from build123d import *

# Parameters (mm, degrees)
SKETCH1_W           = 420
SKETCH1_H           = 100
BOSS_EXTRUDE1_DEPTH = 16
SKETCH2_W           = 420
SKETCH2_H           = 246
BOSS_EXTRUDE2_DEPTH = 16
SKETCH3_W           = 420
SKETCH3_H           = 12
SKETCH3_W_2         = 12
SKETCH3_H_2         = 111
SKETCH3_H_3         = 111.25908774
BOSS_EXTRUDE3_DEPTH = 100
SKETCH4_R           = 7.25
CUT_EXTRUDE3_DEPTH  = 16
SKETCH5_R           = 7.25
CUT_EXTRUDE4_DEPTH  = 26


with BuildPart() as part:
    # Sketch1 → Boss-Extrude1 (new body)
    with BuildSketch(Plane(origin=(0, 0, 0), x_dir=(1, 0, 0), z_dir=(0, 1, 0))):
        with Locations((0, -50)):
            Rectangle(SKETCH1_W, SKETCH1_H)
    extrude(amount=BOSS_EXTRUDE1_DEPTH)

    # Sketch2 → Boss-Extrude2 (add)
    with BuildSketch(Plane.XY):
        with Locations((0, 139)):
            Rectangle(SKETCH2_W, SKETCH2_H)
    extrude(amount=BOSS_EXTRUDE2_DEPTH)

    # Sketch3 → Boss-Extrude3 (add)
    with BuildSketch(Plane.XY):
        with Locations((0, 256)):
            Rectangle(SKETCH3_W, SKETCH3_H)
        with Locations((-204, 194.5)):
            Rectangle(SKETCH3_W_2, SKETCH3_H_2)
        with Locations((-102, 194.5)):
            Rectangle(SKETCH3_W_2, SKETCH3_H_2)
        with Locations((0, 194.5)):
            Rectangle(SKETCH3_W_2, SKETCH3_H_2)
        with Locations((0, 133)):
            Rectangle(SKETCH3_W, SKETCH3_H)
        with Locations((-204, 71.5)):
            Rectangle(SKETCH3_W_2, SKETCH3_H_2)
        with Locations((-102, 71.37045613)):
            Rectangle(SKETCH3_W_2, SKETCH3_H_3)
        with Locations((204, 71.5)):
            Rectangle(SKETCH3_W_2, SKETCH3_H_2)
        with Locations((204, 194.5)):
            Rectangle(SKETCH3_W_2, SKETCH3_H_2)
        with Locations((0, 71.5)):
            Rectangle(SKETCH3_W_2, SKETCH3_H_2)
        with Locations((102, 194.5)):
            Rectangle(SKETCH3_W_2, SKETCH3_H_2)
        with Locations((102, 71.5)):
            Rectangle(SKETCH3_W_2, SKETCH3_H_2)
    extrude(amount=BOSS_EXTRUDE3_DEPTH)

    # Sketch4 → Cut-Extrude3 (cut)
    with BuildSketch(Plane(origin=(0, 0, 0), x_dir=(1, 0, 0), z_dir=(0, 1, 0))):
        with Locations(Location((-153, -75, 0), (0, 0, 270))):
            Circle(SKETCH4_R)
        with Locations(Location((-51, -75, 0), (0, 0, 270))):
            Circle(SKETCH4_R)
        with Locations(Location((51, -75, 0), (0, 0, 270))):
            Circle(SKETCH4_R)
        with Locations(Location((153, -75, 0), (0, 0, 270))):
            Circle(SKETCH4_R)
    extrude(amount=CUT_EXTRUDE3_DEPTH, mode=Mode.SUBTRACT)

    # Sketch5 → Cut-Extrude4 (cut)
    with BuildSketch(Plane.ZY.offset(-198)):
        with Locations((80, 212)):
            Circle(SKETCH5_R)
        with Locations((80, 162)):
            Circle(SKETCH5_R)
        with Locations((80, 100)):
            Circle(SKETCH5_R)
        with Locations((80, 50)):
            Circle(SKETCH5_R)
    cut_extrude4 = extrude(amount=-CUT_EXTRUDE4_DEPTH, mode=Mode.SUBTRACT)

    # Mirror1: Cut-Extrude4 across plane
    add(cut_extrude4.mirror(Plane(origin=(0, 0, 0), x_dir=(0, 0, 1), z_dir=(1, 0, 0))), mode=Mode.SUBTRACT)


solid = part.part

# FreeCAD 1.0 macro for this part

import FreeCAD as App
import Part
import Sketcher
Q = App.Units.Quantity


def add_polygon(sketch, points):
    """Adds a closed chain of lines whose ends are joined by coincident constraints."""
    first, n = sketch.GeometryCount, len(points)
    for a, b in zip(points, points[1:] + points[:1]):
        sketch.addGeometry(Part.LineSegment(App.Vector(*a, 0), App.Vector(*b, 0)), False)
    for i in range(n):
        sketch.addConstraint(Sketcher.Constraint("Coincident", first + i, 2, first + (i + 1) % n, 1))

doc = App.newDocument("Part")
body = doc.addObject("PartDesign::Body", "Body")

sketch1 = doc.addObject("Sketcher::SketchObject", "Sketch")
body.addObject(sketch1)
sketch1.AttachmentSupport = (doc.XZ_Plane, [""])
sketch1.MapMode = "FlatFace"
add_polygon(sketch1, [(-210, 0), (-210, 100), (210, 100), (210, 0)])
sketch1.addConstraint(Sketcher.Constraint("Vertical", 0))
sketch1.addConstraint(Sketcher.Constraint("Horizontal", 1))
sketch1.addConstraint(Sketcher.Constraint("Vertical", 2))
sketch1.addConstraint(Sketcher.Constraint("Horizontal", 3))
sketch1.addConstraint(Sketcher.Constraint("Symmetric", 2, 2, 3, 2, -1, 1))
sketch1.addConstraint(Sketcher.Constraint("DistanceX", 1, 1, 1, 2, Q("420 mm")))
sketch1.addConstraint(Sketcher.Constraint("DistanceY", 0, 1, 0, 2, Q("100 mm")))
pad1 = doc.addObject("PartDesign::Pad", "Pad")
body.addObject(pad1)
pad1.Profile = sketch1
pad1.Length = 16
pad1.Reversed = True

sketch2 = doc.addObject("Sketcher::SketchObject", "Sketch001")
body.addObject(sketch2)
sketch2.AttachmentSupport = (doc.XY_Plane, [""])
sketch2.MapMode = "FlatFace"
add_polygon(sketch2, [(-210, 262), (-210, 16), (210, 16), (210, 262)])
sketch2.addConstraint(Sketcher.Constraint("Vertical", 0))
sketch2.addConstraint(Sketcher.Constraint("Horizontal", 1))
sketch2.addConstraint(Sketcher.Constraint("Vertical", 2))
sketch2.addConstraint(Sketcher.Constraint("Horizontal", 3))
sketch2.addConstraint(Sketcher.Constraint("DistanceX", 1, 1, 1, 2, Q("420 mm")))
sketch2.addConstraint(Sketcher.Constraint("DistanceY", 0, 2, 0, 1, Q("246 mm")))
sketch2.addConstraint(Sketcher.Constraint("DistanceX", 0, 2, -1, 1, Q("210 mm")))
sketch2.addConstraint(Sketcher.Constraint("DistanceY", -1, 1, 0, 2, Q("16 mm")))
pad2 = doc.addObject("PartDesign::Pad", "Pad001")
body.addObject(pad2)
pad2.Profile = sketch2
pad2.Length = 16

sketch3 = doc.addObject("Sketcher::SketchObject", "Sketch002")
body.addObject(sketch3)
sketch3.AttachmentSupport = (doc.XY_Plane, [""])
sketch3.MapMode = "FlatFace"
add_polygon(sketch3, [(-210, 262), (-210, 16), (-198, 16), (-198, 127), (-108, 127), (-108, 15.740912), (-96, 15.740912), (-96, 127), (-6, 127), (-6, 16), (6, 16), (6, 127), (96, 127), (96, 16), (108, 16), (108, 127), (198, 127), (198, 16), (210, 16), (210, 262)])
add_polygon(sketch3, [(96, 139), (6, 139), (6, 250), (96, 250)])
add_polygon(sketch3, [(198, 139), (108, 139), (108, 250), (198, 250)])
add_polygon(sketch3, [(-198, 139), (-198, 250), (-108, 250), (-108, 139)])
add_polygon(sketch3, [(-96, 139), (-96, 250), (-6, 250), (-6, 139)])
sketch3.addConstraint(Sketcher.Constraint("Vertical", 0))
sketch3.addConstraint(Sketcher.Constraint("Horizontal", 1))
sketch3.addConstraint(Sketcher.Constraint("Vertical", 2))
sketch3.addConstraint(Sketcher.Constraint("Horizontal", 3))
sketch3.addConstraint(Sketcher.Constraint("Vertical", 4))
sketch3.addConstraint(Sketcher.Constraint("Horizontal", 5))
sketch3.addConstraint(Sketcher.Constraint("Vertical", 6))
sketch3.addConstraint(Sketcher.Constraint("Horizontal", 7))
sketch3.addConstraint(Sketcher.Constraint("Vertical", 8))
sketch3.addConstraint(Sketcher.Constraint("Horizontal", 9))
sketch3.addConstraint(Sketcher.Constraint("Vertical", 10))
sketch3.addConstraint(Sketcher.Constraint("Horizontal", 11))
sketch3.addConstraint(Sketcher.Constraint("Vertical", 12))
sketch3.addConstraint(Sketcher.Constraint("Horizontal", 13))
sketch3.addConstraint(Sketcher.Constraint("Vertical", 14))
sketch3.addConstraint(Sketcher.Constraint("Horizontal", 15))
sketch3.addConstraint(Sketcher.Constraint("Vertical", 16))
sketch3.addConstraint(Sketcher.Constraint("Horizontal", 17))
sketch3.addConstraint(Sketcher.Constraint("Vertical", 18))
sketch3.addConstraint(Sketcher.Constraint("Horizontal", 19))
sketch3.addConstraint(Sketcher.Constraint("Horizontal", 20))
sketch3.addConstraint(Sketcher.Constraint("Vertical", 21))
sketch3.addConstraint(Sketcher.Constraint("Horizontal", 22))
sketch3.addConstraint(Sketcher.Constraint("Vertical", 23))
sketch3.addConstraint(Sketcher.Constraint("Horizontal", 24))
sketch3.addConstraint(Sketcher.Constraint("Vertical", 25))
sketch3.addConstraint(Sketcher.Constraint("Horizontal", 26))
sketch3.addConstraint(Sketcher.Constraint("Vertical", 27))
sketch3.addConstraint(Sketcher.Constraint("Vertical", 28))
sketch3.addConstraint(Sketcher.Constraint("Horizontal", 29))
sketch3.addConstraint(Sketcher.Constraint("Vertical", 30))
sketch3.addConstraint(Sketcher.Constraint("Horizontal", 31))
sketch3.addConstraint(Sketcher.Constraint("Vertical", 32))
sketch3.addConstraint(Sketcher.Constraint("Horizontal", 33))
sketch3.addConstraint(Sketcher.Constraint("Vertical", 34))
sketch3.addConstraint(Sketcher.Constraint("Horizontal", 35))
sketch3.addConstraint(Sketcher.Constraint("Symmetric", 7, 2, 10, 2, -2))
sketch3.addConstraint(Sketcher.Constraint("Symmetric", 3, 2, 14, 2, -2))
sketch3.addConstraint(Sketcher.Constraint("Symmetric", 1, 2, 16, 2, -2))
sketch3.addConstraint(Sketcher.Constraint("Symmetric", 26, 2, 28, 2, -2))
sketch3.addConstraint(Sketcher.Constraint("Symmetric", 24, 2, 30, 2, -2))
sketch3.addConstraint(Sketcher.Constraint("Symmetric", 22, 2, 32, 2, -2))
sketch3.addConstraint(Sketcher.Constraint("Symmetric", 20, 2, 34, 2, -2))
sketch3.addConstraint(Sketcher.Constraint("Horizontal", 3, 2, 6, 2))
sketch3.addConstraint(Sketcher.Constraint("Horizontal", 1, 2, 8, 2))
sketch3.addConstraint(Sketcher.Constraint("Horizontal", 9, 2, 12, 2))
sketch3.addConstraint(Sketcher.Constraint("Horizontal", 23, 2, 24, 2))
sketch3.addConstraint(Sketcher.Constraint("Horizontal", 22, 2, 25, 2))
sketch3.addConstraint(Sketcher.Constraint("Vertical", 10, 2, 20, 2))
sketch3.addConstraint(Sketcher.Constraint("Vertical", 12, 2, 22, 2))
sketch3.addConstraint(Sketcher.Constraint("Vertical", 14, 2, 24, 2))
sketch3.addConstraint(Sketcher.Constraint("Vertical", 16, 2, 26, 2))
sketch3.addConstraint(Sketcher.Constraint("Vertical", 6, 2, 32, 2))
sketch3.addConstraint(Sketcher.Constraint("Equal", 1, 5))
sketch3.addConstraint(Sketcher.Constraint("Equal", 3, 7))
sketch3.addConstraint(Sketcher.Constraint("Equal", 5, 9))
sketch3.addConstraint(Sketcher.Constraint("Equal", 13, 17))
sketch3.addConstraint(Sketcher.Constraint("Equal", 16, 21))
sketch3.addConstraint(Sketcher.Constraint("DistanceX", 1, 1, 1, 2, Q("12 mm")))
sketch3.addConstraint(Sketcher.Constraint("DistanceX", 3, 1, 3, 2, Q("90 mm")))
sketch3.addConstraint(Sketcher.Constraint("DistanceY", 0, 2, 0, 1, Q("246 mm")))
sketch3.addConstraint(Sketcher.Constraint("DistanceY", 2, 1, 2, 2, Q("111 mm")))
sketch3.addConstraint(Sketcher.Constraint("DistanceY", -1, 1, 0, 2, Q("16 mm")))
sketch3.addConstraint(Sketcher.Constraint("DistanceY", -1, 1, 20, 2, Q("139 mm")))
sketch3.addConstraint(Sketcher.Constraint("DistanceY", 4, 2, 4, 1, Q("111.259088 mm")))
pad3 = doc.addObject("PartDesign::Pad", "Pad002")
body.addObject(pad3)
pad3.Profile = sketch3
pad3.Length = 100

sketch4 = doc.addObject("Sketcher::SketchObject", "Sketch003")
body.addObject(sketch4)
sketch4.AttachmentSupport = (doc.XZ_Plane, [""])
sketch4.MapMode = "FlatFace"
sketch4.addGeometry(Part.Circle(App.Vector(-153, 75, 0), App.Vector(0, 0, 1), 7.25), False)
sketch4.addGeometry(Part.Circle(App.Vector(-51, 75, 0), App.Vector(0, 0, 1), 7.25), False)
sketch4.addGeometry(Part.Circle(App.Vector(51, 75, 0), App.Vector(0, 0, 1), 7.25), False)
sketch4.addGeometry(Part.Circle(App.Vector(153, 75, 0), App.Vector(0, 0, 1), 7.25), False)
sketch4.addConstraint(Sketcher.Constraint("Equal", 0, 1))
sketch4.addConstraint(Sketcher.Constraint("Equal", 1, 2))
sketch4.addConstraint(Sketcher.Constraint("Equal", 2, 3))
sketch4.addConstraint(Sketcher.Constraint("Symmetric", 1, 3, 2, 3, -2))
sketch4.addConstraint(Sketcher.Constraint("Symmetric", 0, 3, 3, 3, -2))
sketch4.addConstraint(Sketcher.Constraint("Horizontal", 0, 3, 1, 3))
sketch4.addConstraint(Sketcher.Constraint("Diameter", 0, Q("14.5 mm")))
sketch4.addConstraint(Sketcher.Constraint("DistanceX", 0, 3, -1, 1, Q("153 mm")))
sketch4.addConstraint(Sketcher.Constraint("DistanceY", -1, 1, 0, 3, Q("75 mm")))
sketch4.addConstraint(Sketcher.Constraint("DistanceX", 1, 3, -1, 1, Q("51 mm")))
pocket1 = doc.addObject("PartDesign::Pocket", "Pocket")
body.addObject(pocket1)
pocket1.Profile = sketch4
pocket1.Length = 16

sketch5 = doc.addObject("Sketcher::SketchObject", "Sketch004")
body.addObject(sketch5)
sketch5.AttachmentSupport = (doc.YZ_Plane, [""])
sketch5.MapMode = "FlatFace"
sketch5.AttachmentOffset = App.Placement(App.Vector(0, 0, 198), App.Rotation())
sketch5.addGeometry(Part.Circle(App.Vector(212, 80, 0), App.Vector(0, 0, 1), 7.25), False)
sketch5.addGeometry(Part.Circle(App.Vector(162, 80, 0), App.Vector(0, 0, 1), 7.25), False)
sketch5.addGeometry(Part.Circle(App.Vector(100, 80, 0), App.Vector(0, 0, 1), 7.25), False)
sketch5.addGeometry(Part.Circle(App.Vector(50, 80, 0), App.Vector(0, 0, 1), 7.25), False)
sketch5.addConstraint(Sketcher.Constraint("Equal", 0, 1))
sketch5.addConstraint(Sketcher.Constraint("Equal", 1, 2))
sketch5.addConstraint(Sketcher.Constraint("Equal", 2, 3))
sketch5.addConstraint(Sketcher.Constraint("Horizontal", 0, 3, 1, 3))
sketch5.addConstraint(Sketcher.Constraint("Horizontal", 1, 3, 2, 3))
sketch5.addConstraint(Sketcher.Constraint("Horizontal", 2, 3, 3, 3))
sketch5.addConstraint(Sketcher.Constraint("Diameter", 0, Q("14.5 mm")))
sketch5.addConstraint(Sketcher.Constraint("DistanceX", -1, 1, 0, 3, Q("212 mm")))
sketch5.addConstraint(Sketcher.Constraint("DistanceY", -1, 1, 0, 3, Q("80 mm")))
sketch5.addConstraint(Sketcher.Constraint("DistanceX", -1, 1, 1, 3, Q("162 mm")))
sketch5.addConstraint(Sketcher.Constraint("DistanceX", -1, 1, 2, 3, Q("100 mm")))
sketch5.addConstraint(Sketcher.Constraint("DistanceX", -1, 1, 3, 3, Q("50 mm")))
pocket2 = doc.addObject("PartDesign::Pocket", "Pocket001")
body.addObject(pocket2)
pocket2.Profile = sketch5
pocket2.Length = 26
pocket2.Reversed = True
doc.recompute()

mirrored = doc.addObject("PartDesign::Mirrored", "Mirrored")
body.addObject(mirrored)
mirrored.Originals = [pocket2]
mirrored.MirrorPlane = (doc.YZ_Plane, [""])
body.Tip = mirrored

doc.recompute()
